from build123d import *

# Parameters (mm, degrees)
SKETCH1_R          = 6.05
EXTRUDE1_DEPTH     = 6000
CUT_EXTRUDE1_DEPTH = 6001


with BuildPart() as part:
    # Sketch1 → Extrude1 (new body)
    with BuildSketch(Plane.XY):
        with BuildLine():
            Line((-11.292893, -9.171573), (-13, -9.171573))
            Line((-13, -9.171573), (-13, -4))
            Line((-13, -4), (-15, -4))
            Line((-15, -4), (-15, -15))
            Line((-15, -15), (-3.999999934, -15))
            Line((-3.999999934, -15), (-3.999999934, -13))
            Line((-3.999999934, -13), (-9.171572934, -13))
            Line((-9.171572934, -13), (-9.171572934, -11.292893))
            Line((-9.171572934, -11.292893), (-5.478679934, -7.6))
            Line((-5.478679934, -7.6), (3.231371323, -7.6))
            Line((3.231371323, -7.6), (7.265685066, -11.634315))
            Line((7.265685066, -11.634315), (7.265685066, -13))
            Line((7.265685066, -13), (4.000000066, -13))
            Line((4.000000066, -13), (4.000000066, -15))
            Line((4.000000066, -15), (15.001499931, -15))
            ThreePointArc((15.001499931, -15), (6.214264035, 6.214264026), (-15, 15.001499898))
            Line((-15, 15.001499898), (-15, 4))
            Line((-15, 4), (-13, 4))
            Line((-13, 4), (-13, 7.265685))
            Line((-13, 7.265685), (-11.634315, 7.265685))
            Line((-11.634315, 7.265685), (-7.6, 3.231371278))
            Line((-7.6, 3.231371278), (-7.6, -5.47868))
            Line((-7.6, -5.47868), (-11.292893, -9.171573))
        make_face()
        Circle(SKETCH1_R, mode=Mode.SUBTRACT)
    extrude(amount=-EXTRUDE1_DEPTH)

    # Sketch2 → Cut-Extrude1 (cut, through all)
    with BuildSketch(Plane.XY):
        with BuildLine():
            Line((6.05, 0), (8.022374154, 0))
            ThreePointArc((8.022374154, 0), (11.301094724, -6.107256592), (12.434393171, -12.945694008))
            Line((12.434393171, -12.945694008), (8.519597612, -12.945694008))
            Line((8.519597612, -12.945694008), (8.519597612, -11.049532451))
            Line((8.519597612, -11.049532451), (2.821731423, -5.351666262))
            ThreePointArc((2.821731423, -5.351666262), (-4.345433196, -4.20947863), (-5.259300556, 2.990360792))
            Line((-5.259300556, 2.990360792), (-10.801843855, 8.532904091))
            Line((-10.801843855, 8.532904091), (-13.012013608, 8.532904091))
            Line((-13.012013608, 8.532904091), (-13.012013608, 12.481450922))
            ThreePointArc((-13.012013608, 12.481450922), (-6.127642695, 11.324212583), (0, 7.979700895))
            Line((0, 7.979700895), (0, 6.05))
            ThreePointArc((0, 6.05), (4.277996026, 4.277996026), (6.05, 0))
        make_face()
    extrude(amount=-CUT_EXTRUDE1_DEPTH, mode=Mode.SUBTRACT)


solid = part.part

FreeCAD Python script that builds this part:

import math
import FreeCAD as App
import Part
import Sketcher
Q = App.Units.Quantity

doc = App.newDocument("Part")
body = doc.addObject("PartDesign::Body", "Body")

sketch1 = body.newObject("Sketcher::SketchObject", "Sketch")
sketch1.AttachmentSupport = (doc.getObject("XY_Plane"), [""])
sketch1.MapMode = "FlatFace"
sketch1.addGeometry([
    Part.LineSegment(App.Vector(-11.292893, -9.171573, 0), App.Vector(-13, -9.171573, 0)),
    Part.LineSegment(App.Vector(-13, -9.171573, 0), App.Vector(-13, -4, 0)),
    Part.LineSegment(App.Vector(-13, -4, 0), App.Vector(-15, -4, 0)),
    Part.LineSegment(App.Vector(-15, -4, 0), App.Vector(-15, -15, 0)),
    Part.LineSegment(App.Vector(-15, -15, 0), App.Vector(-4, -15, 0)),
    Part.LineSegment(App.Vector(-4, -15, 0), App.Vector(-4, -13, 0)),
    Part.LineSegment(App.Vector(-4, -13, 0), App.Vector(-9.171573, -13, 0)),
    Part.LineSegment(App.Vector(-9.171573, -13, 0), App.Vector(-9.171573, -11.292893, 0)),
    Part.LineSegment(App.Vector(-9.171573, -11.292893, 0), App.Vector(-5.47868, -7.6, 0)),
    Part.LineSegment(App.Vector(-5.47868, -7.6, 0), App.Vector(3.231371, -7.6, 0)),
    Part.LineSegment(App.Vector(3.231371, -7.6, 0), App.Vector(7.265685, -11.634315, 0)),
    Part.LineSegment(App.Vector(7.265685, -11.634315, 0), App.Vector(7.265685, -13, 0)),
    Part.LineSegment(App.Vector(7.265685, -13, 0), App.Vector(4, -13, 0)),
    Part.LineSegment(App.Vector(4, -13, 0), App.Vector(4, -15, 0)),
    Part.LineSegment(App.Vector(4, -15, 0), App.Vector(15.0015, -15, 0)),
    Part.ArcOfCircle(Part.Circle(App.Vector(-15, -15, 0), App.Vector(0, 0, 1), 30.0015), math.radians(0), math.radians(90)),
    Part.LineSegment(App.Vector(-15, 15.0015, 0), App.Vector(-15, 4, 0)),
    Part.LineSegment(App.Vector(-15, 4, 0), App.Vector(-13, 4, 0)),
    Part.LineSegment(App.Vector(-13, 4, 0), App.Vector(-13, 7.265685, 0)),
    Part.LineSegment(App.Vector(-13, 7.265685, 0), App.Vector(-11.634315, 7.265685, 0)),
    Part.LineSegment(App.Vector(-11.634315, 7.265685, 0), App.Vector(-7.6, 3.231371, 0)),
    Part.LineSegment(App.Vector(-7.6, 3.231371, 0), App.Vector(-7.6, -5.47868, 0)),
    Part.LineSegment(App.Vector(-7.6, -5.47868, 0), App.Vector(-11.292893, -9.171573, 0)),
    Part.Circle(App.Vector(0, 0, 0), App.Vector(0, 0, 1), 6.05),
], False)
sketch1.addConstraint([
    Sketcher.Constraint("Coincident", 0, 2, 1, 1),
    Sketcher.Constraint("Coincident", 1, 2, 2, 1),
    Sketcher.Constraint("Coincident", 2, 2, 3, 1),
    Sketcher.Constraint("Coincident", 3, 2, 4, 1),
    Sketcher.Constraint("Coincident", 4, 2, 5, 1),
    Sketcher.Constraint("Coincident", 5, 2, 6, 1),
    Sketcher.Constraint("Coincident", 6, 2, 7, 1),
    Sketcher.Constraint("Coincident", 7, 2, 8, 1),
    Sketcher.Constraint("Coincident", 8, 2, 9, 1),
    Sketcher.Constraint("Coincident", 9, 2, 10, 1),
    Sketcher.Constraint("Coincident", 10, 2, 11, 1),
    Sketcher.Constraint("Coincident", 11, 2, 12, 1),
    Sketcher.Constraint("Coincident", 12, 2, 13, 1),
    Sketcher.Constraint("Coincident", 13, 2, 14, 1),
    Sketcher.Constraint("Coincident", 14, 2, 15, 1),
    Sketcher.Constraint("Coincident", 15, 2, 16, 1),
    Sketcher.Constraint("Coincident", 16, 2, 17, 1),
    Sketcher.Constraint("Coincident", 17, 2, 18, 1),
    Sketcher.Constraint("Coincident", 18, 2, 19, 1),
    Sketcher.Constraint("Coincident", 19, 2, 20, 1),
    Sketcher.Constraint("Coincident", 20, 2, 21, 1),
    Sketcher.Constraint("Coincident", 21, 2, 22, 1),
    Sketcher.Constraint("Coincident", 22, 2, 0, 1),
    Sketcher.Constraint("Horizontal", 0),
    Sketcher.Constraint("Vertical", 1),
    Sketcher.Constraint("Horizontal", 2),
    Sketcher.Constraint("Vertical", 3),
    Sketcher.Constraint("Horizontal", 4),
    Sketcher.Constraint("Vertical", 5),
    Sketcher.Constraint("Horizontal", 6),
    Sketcher.Constraint("Vertical", 7),
    Sketcher.Constraint("Horizontal", 9),
    Sketcher.Constraint("Vertical", 11),
    Sketcher.Constraint("Horizontal", 12),
    Sketcher.Constraint("Vertical", 13),
    Sketcher.Constraint("Horizontal", 14),
    Sketcher.Constraint("Vertical", 16),
    Sketcher.Constraint("Horizontal", 17),
    Sketcher.Constraint("Vertical", 18),
    Sketcher.Constraint("Horizontal", 19),
    Sketcher.Constraint("Vertical", 21),
    Sketcher.Constraint("Coincident", 23, 3, -1, 1),
    Sketcher.Constraint("Coincident", 3, 2, 15, 3),
    Sketcher.Constraint("Symmetric", 5, 2, 12, 2, -2),
    Sketcher.Constraint("Symmetric", 2, 2, 16, 2, -1),
    Sketcher.Constraint("Perpendicular", 8, 10),
    Sketcher.Constraint("Parallel", 10, 20),
    Sketcher.Constraint("Perpendicular", 20, 22),
    Sketcher.Constraint("Horizontal", 4, 2, 13, 2),
    Sketcher.Constraint("Vertical", 1, 2, 17, 2),
    Sketcher.Constraint("Equal", 6, 1),
    Sketcher.Constraint("Equal", 4, 3),
    Sketcher.Constraint("Equal", 17, 5),
    Sketcher.Constraint("Equal", 0, 7),
    Sketcher.Constraint("Equal", 19, 11),
    Sketcher.Constraint("Equal", 14, 16),
    Sketcher.Constraint("Equal", 12, 18),
    Sketcher.Constraint("Equal", 9, 21),
    Sketcher.Constraint("Equal", 10, 20),
    Sketcher.Constraint("Diameter", 23, 12.1),
    Sketcher.Constraint("DistanceX", 2, 2, 2, 1, 2.0),
    Sketcher.Constraint("DistanceX", 4, 1, 4, 2, 11.0),
    Sketcher.Constraint("DistanceX", 15, 3, -1, 1, 15.0),
    Sketcher.Constraint("DistanceY", 8, 2, -1, 1, 7.6),
    Sketcher.Constraint("Radius", 15, 30.0015),
    Sketcher.Constraint("DistanceX", 9, 1, 9, 2, 8.710051),
    Sketcher.Constraint("Distance", 8, 5.222539),
    Sketcher.Constraint("DistanceX", 6, 2, 6, 1, 5.171573),
    Sketcher.Constraint("DistanceX", 12, 2, 12, 1, 3.265685),
])
pad1 = body.newObject("PartDesign::Pad", "Pad")
pad1.Profile = sketch1
pad1.Length = 6000
pad1.Reversed = True

sketch2 = body.newObject("Sketcher::SketchObject", "Sketch001")
sketch2.AttachmentSupport = (doc.getObject("XY_Plane"), [""])
sketch2.MapMode = "FlatFace"
sketch2.addGeometry([
    Part.LineSegment(App.Vector(8.022374, 0, 0), App.Vector(6.05, 0, 0)),
    Part.ArcOfCircle(Part.Circle(App.Vector(0, 0, 0), App.Vector(0, 0, 1), 6.05), math.radians(0), math.radians(90)),
    Part.LineSegment(App.Vector(0, 6.05, 0), App.Vector(0, 7.979701, 0)),
    Part.ArcOfCircle(Part.Circle(App.Vector(-13.012014, -8.574611, 0), App.Vector(0, 0, 1), 21.056062), math.radians(51.831958), math.radians(90)),
    Part.LineSegment(App.Vector(-13.012014, 12.481451, 0), App.Vector(-13.012014, 8.532904, 0)),
    Part.LineSegment(App.Vector(-13.012014, 8.532904, 0), App.Vector(-10.801844, 8.532904, 0)),
    Part.LineSegment(App.Vector(-10.801844, 8.532904, 0), App.Vector(-5.259301, 2.990361, 0)),
    Part.ArcOfCircle(Part.Circle(App.Vector(0, 0, 0), App.Vector(0, 0, 1), 6.05), math.radians(150.378078), math.radians(297.800988)),
    Part.LineSegment(App.Vector(2.821731, -5.351666, 0), App.Vector(8.519598, -11.049532, 0)),
    Part.LineSegment(App.Vector(8.519598, -11.049532, 0), App.Vector(8.519598, -12.945694, 0)),
    Part.LineSegment(App.Vector(8.519598, -12.945694, 0), App.Vector(12.434393, -12.945694, 0)),
    Part.ArcOfCircle(Part.Circle(App.Vector(-8.764167, -12.945694, 0), App.Vector(0, 0, 1), 21.198561), math.radians(0), math.radians(37.639224)),
], False)
sketch2.addConstraint([
    Sketcher.Constraint("Coincident", 0, 2, 1, 1),
    Sketcher.Constraint("Coincident", 1, 2, 2, 1),
    Sketcher.Constraint("Coincident", 2, 2, 3, 1),
    Sketcher.Constraint("Coincident", 3, 2, 4, 1),
    Sketcher.Constraint("Coincident", 4, 2, 5, 1),
    Sketcher.Constraint("Coincident", 5, 2, 6, 1),
    Sketcher.Constraint("Coincident", 6, 2, 7, 1),
    Sketcher.Constraint("Coincident", 7, 2, 8, 1),
    Sketcher.Constraint("Coincident", 8, 2, 9, 1),
    Sketcher.Constraint("Coincident", 9, 2, 10, 1),
    Sketcher.Constraint("Coincident", 10, 2, 11, 1),
    Sketcher.Constraint("Coincident", 11, 2, 0, 1),
    Sketcher.Constraint("Horizontal", 0),
    Sketcher.Constraint("Vertical", 2),
    Sketcher.Constraint("Vertical", 4),
    Sketcher.Constraint("Horizontal", 5),
    Sketcher.Constraint("Vertical", 9),
    Sketcher.Constraint("Horizontal", 10),
    Sketcher.Constraint("Coincident", 1, 3, -1, 1),
    Sketcher.Constraint("Coincident", 7, 3, -1, 1),
    Sketcher.Constraint("Equal", 1, 7),
    Sketcher.Constraint("PointOnObject", 0, 2, -1),
    Sketcher.Constraint("PointOnObject", 1, 2, -2),
    Sketcher.Constraint("Parallel", 6, 8),
    Sketcher.Constraint("Horizontal", 11, 3, 9, 2),
    Sketcher.Constraint("Angle", 6, Q("-45 deg")),
    Sketcher.Constraint("Radius", 1, 6.05),
    Sketcher.Constraint("Radius", 3, 21.056062),
    Sketcher.Constraint("Radius", 11, 21.198561),
    Sketcher.Constraint("Distance", 8, 8.058),
    Sketcher.Constraint("DistanceY", 2, 1, 2, 2, 1.929701),
    Sketcher.Constraint("DistanceX", 5, 1, 5, 2, 2.21017),
    Sketcher.Constraint("DistanceY", 9, 2, 9, 1, 1.896162),
    Sketcher.Constraint("DistanceX", 6, 2, -1, 1, 5.259301),
    Sketcher.Constraint("Distance", 6, 7.83834),
    Sketcher.Constraint("DistanceX", 0, 2, 0, 1, 1.972374),
    Sketcher.Constraint("DistanceX", 10, 1, 10, 2, 3.914796),
    Sketcher.Constraint("DistanceY", 4, 2, 4, 1, 3.948547),
])
pocket1 = body.newObject("PartDesign::Pocket", "Pocket")
pocket1.Profile = sketch2
pocket1.Type = "ThroughAll"

doc.recompute()
